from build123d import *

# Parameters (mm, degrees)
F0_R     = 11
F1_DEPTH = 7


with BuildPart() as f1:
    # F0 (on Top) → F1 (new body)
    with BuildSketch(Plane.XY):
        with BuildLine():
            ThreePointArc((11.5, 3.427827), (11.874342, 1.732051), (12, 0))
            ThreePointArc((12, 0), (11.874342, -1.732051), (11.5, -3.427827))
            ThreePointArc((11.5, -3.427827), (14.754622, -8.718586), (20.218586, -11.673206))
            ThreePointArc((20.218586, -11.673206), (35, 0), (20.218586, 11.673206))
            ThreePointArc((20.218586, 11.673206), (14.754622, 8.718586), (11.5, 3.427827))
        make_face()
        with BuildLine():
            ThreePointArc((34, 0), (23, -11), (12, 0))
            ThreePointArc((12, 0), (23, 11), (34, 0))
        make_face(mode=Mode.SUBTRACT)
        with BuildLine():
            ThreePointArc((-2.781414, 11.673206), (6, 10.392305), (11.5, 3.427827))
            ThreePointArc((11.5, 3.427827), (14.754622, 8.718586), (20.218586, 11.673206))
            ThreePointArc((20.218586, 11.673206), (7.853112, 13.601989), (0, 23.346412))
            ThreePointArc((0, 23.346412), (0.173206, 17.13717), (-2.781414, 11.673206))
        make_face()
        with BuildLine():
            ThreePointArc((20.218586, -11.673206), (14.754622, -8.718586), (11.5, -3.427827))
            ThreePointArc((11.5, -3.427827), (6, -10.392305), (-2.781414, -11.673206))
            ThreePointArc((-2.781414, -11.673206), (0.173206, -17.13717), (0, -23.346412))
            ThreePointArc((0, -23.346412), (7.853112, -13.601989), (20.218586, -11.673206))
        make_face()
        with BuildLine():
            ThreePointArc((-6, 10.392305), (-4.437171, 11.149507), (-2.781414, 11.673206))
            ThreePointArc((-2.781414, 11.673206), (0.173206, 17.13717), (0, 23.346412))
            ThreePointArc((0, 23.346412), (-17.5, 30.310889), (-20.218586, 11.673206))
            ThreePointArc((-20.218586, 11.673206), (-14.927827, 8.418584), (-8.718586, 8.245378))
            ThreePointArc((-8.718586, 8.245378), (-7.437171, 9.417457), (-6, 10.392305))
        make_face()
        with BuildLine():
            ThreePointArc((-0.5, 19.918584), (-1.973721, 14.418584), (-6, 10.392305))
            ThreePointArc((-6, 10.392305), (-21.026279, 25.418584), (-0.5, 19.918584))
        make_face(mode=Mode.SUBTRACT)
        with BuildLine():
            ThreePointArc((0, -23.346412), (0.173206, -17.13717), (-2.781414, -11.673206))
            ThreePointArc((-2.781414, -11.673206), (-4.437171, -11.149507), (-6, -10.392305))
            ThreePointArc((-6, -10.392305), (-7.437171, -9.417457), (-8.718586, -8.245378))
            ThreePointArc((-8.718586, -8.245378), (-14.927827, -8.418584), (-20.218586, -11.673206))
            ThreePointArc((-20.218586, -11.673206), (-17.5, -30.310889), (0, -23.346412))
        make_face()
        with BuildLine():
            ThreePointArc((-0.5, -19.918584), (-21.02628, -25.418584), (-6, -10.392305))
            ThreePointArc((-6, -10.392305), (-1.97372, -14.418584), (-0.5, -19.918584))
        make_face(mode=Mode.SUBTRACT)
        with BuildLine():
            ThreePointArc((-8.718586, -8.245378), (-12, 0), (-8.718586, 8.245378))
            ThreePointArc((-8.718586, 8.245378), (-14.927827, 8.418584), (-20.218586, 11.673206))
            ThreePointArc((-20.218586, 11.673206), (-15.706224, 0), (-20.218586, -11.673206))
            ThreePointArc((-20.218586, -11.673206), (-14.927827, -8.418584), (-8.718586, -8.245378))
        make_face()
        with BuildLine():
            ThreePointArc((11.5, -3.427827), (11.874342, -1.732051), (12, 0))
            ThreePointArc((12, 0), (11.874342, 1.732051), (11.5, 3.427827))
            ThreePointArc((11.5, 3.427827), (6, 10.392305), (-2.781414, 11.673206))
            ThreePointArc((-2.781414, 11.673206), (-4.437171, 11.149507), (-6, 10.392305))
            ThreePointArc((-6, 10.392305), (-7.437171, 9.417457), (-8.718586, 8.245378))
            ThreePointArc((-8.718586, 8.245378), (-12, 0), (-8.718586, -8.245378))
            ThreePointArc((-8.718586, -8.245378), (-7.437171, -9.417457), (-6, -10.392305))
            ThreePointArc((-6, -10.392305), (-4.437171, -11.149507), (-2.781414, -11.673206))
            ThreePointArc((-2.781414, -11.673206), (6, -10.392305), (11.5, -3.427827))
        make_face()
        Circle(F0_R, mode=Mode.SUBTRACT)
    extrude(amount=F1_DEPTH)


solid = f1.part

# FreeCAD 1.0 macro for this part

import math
import FreeCAD as App
import Part
import Sketcher
from FreeCAD import Vector

doc = App.newDocument("Part")
body = doc.addObject("PartDesign::Body", "Body")

sketch1 = body.newObject("Sketcher::SketchObject", "Sketch")
sketch1.AttachmentSupport = (doc.getObject("XY_Plane"), [""])
sketch1.MapMode = "FlatFace"
sketch1.addGeometry(Part.ArcOfCircle(Part.Circle(Vector(-11.5, 19.918584, 0), Vector(0, 0, 1), 12), math.radians(16.597845), math.radians(223.402155)), False)
sketch1.addGeometry(Part.ArcOfCircle(Part.Circle(Vector(-33.061342, 0, 0), Vector(0, 0, 1), 17.355118), math.radians(-42.268738), math.radians(42.268738)), False)
sketch1.addGeometry(Part.ArcOfCircle(Part.Circle(Vector(-11.5, -19.918584, 0), Vector(0, 0, 1), 12), math.radians(136.597845), math.radians(343.402155)), False)
sketch1.addGeometry(Part.ArcOfCircle(Part.Circle(Vector(16.530671, -28.631962, 0), Vector(0, 0, 1), 17.355118), math.radians(77.731263), math.radians(162.268737)), False)
sketch1.addGeometry(Part.ArcOfCircle(Part.Circle(Vector(23, 0, 0), Vector(0, 0, 1), 12), math.radians(-103.402155), math.radians(103.402155)), False)
sketch1.addGeometry(Part.ArcOfCircle(Part.Circle(Vector(16.530671, 28.631962, 0), Vector(0, 0, 1), 17.355118), math.radians(-162.268737), math.radians(-77.731263)), False)
sketch1.addGeometry(Part.ArcOfCircle(Part.Circle(Vector(-11.5, -19.918585, 0), Vector(0, 0, 1), 11), math.radians(60), math.radians(360.000003)), False)
sketch1.addGeometry(Part.ArcOfCircle(Part.Circle(Vector(-11.499995, -19.918582, 0), Vector(0, 0, 1), 10.999995), math.radians(-0.000011), math.radians(60.000014)), False)
sketch1.addGeometry(Part.Circle(Vector(0, 0, 0), Vector(0, 0, 1), 11), False)
sketch1.addGeometry(Part.ArcOfCircle(Part.Circle(Vector(-11.500001, 19.918585, 0), Vector(0, 0, 1), 11.000001), math.radians(-59.999997), math.radians(-0.000005)), False)
sketch1.addGeometry(Part.ArcOfCircle(Part.Circle(Vector(-11.5, 19.918584, 0), Vector(0, 0, 1), 11), math.radians(-0.000001), math.radians(299.999999)), False)
sketch1.addGeometry(Part.Circle(Vector(23, 0, 0), Vector(0, 0, 1), 11), False)
sketch1.addConstraint(Sketcher.Constraint("Coincident", 0, 2, 1, 2))
sketch1.addConstraint(Sketcher.Constraint("Coincident", 1, 1, 2, 1))
sketch1.addConstraint(Sketcher.Constraint("Coincident", 2, 2, 3, 2))
sketch1.addConstraint(Sketcher.Constraint("Coincident", 3, 1, 4, 1))
sketch1.addConstraint(Sketcher.Constraint("Coincident", 4, 2, 5, 2))
sketch1.addConstraint(Sketcher.Constraint("Coincident", 5, 1, 0, 1))
sketch1.addConstraint(Sketcher.Constraint("Tangent", 6, 1, 7, 2))
sketch1.addConstraint(Sketcher.Constraint("Coincident", 7, 1, 6, 2))
sketch1.addConstraint(Sketcher.Constraint("Tangent", 9, 1, 10, 2))
sketch1.addConstraint(Sketcher.Constraint("Coincident", 10, 1, 9, 2))
sketch1.addConstraint(Sketcher.Constraint("Coincident", 8, 3, -1, 1))
sketch1.addConstraint(Sketcher.Constraint("Coincident", 6, 3, 2, 3))
sketch1.addConstraint(Sketcher.Constraint("Coincident", 9, 3, 0, 3))
sketch1.addConstraint(Sketcher.Constraint("Coincident", 11, 3, 4, 3))
sketch1.addConstraint(Sketcher.Constraint("Equal", 0, 2))
sketch1.addConstraint(Sketcher.Constraint("Equal", 1, 3))
sketch1.addConstraint(Sketcher.Constraint("Equal", 2, 4))
sketch1.addConstraint(Sketcher.Constraint("Equal", 3, 5))
sketch1.addConstraint(Sketcher.Constraint("Equal", 6, 8))
sketch1.addConstraint(Sketcher.Constraint("Equal", 8, 9))
sketch1.addConstraint(Sketcher.Constraint("Equal", 10, 11))
sketch1.addConstraint(Sketcher.Constraint("Symmetric", 0, 2, 3, 1, -1, 1))
sketch1.addConstraint(Sketcher.Constraint("Symmetric", 1, 1, 4, 2, -1, 1))
sketch1.addConstraint(Sketcher.Constraint("Symmetric", 2, 2, 5, 1, -1, 1))
sketch1.addConstraint(Sketcher.Constraint("Symmetric", 1, 1, 3, 1, -2))
sketch1.addConstraint(Sketcher.Constraint("Symmetric", 6, 1, 9, 1, -1))
sketch1.addConstraint(Sketcher.Constraint("Horizontal", 6, 3, 7, 1))
sketch1.addConstraint(Sketcher.Constraint("Horizontal", 9, 3, 10, 1))
sketch1.addConstraint(Sketcher.Constraint("Diameter", 8, 22.0))
sketch1.addConstraint(Sketcher.Constraint("Radius", 0, 12.0))
sketch1.addConstraint(Sketcher.Constraint("DistanceX", -1, 1, 4, 3, 23.0))
sketch1.addConstraint(Sketcher.Constraint("DistanceX", 6, 1, -1, 1, 6.0))
sketch1.addConstraint(Sketcher.Constraint("DistanceX", 0, 3, -1, 1, 11.5))
sketch1.addConstraint(Sketcher.Constraint("Radius", 3, 17.355118))
sketch1.addConstraint(Sketcher.Constraint("DistanceX", 1, 3, -1, 1, 33.061342))
pad1 = body.newObject("PartDesign::Pad", "Pad")
pad1.Profile = sketch1
pad1.Length = 7

doc.recompute()
